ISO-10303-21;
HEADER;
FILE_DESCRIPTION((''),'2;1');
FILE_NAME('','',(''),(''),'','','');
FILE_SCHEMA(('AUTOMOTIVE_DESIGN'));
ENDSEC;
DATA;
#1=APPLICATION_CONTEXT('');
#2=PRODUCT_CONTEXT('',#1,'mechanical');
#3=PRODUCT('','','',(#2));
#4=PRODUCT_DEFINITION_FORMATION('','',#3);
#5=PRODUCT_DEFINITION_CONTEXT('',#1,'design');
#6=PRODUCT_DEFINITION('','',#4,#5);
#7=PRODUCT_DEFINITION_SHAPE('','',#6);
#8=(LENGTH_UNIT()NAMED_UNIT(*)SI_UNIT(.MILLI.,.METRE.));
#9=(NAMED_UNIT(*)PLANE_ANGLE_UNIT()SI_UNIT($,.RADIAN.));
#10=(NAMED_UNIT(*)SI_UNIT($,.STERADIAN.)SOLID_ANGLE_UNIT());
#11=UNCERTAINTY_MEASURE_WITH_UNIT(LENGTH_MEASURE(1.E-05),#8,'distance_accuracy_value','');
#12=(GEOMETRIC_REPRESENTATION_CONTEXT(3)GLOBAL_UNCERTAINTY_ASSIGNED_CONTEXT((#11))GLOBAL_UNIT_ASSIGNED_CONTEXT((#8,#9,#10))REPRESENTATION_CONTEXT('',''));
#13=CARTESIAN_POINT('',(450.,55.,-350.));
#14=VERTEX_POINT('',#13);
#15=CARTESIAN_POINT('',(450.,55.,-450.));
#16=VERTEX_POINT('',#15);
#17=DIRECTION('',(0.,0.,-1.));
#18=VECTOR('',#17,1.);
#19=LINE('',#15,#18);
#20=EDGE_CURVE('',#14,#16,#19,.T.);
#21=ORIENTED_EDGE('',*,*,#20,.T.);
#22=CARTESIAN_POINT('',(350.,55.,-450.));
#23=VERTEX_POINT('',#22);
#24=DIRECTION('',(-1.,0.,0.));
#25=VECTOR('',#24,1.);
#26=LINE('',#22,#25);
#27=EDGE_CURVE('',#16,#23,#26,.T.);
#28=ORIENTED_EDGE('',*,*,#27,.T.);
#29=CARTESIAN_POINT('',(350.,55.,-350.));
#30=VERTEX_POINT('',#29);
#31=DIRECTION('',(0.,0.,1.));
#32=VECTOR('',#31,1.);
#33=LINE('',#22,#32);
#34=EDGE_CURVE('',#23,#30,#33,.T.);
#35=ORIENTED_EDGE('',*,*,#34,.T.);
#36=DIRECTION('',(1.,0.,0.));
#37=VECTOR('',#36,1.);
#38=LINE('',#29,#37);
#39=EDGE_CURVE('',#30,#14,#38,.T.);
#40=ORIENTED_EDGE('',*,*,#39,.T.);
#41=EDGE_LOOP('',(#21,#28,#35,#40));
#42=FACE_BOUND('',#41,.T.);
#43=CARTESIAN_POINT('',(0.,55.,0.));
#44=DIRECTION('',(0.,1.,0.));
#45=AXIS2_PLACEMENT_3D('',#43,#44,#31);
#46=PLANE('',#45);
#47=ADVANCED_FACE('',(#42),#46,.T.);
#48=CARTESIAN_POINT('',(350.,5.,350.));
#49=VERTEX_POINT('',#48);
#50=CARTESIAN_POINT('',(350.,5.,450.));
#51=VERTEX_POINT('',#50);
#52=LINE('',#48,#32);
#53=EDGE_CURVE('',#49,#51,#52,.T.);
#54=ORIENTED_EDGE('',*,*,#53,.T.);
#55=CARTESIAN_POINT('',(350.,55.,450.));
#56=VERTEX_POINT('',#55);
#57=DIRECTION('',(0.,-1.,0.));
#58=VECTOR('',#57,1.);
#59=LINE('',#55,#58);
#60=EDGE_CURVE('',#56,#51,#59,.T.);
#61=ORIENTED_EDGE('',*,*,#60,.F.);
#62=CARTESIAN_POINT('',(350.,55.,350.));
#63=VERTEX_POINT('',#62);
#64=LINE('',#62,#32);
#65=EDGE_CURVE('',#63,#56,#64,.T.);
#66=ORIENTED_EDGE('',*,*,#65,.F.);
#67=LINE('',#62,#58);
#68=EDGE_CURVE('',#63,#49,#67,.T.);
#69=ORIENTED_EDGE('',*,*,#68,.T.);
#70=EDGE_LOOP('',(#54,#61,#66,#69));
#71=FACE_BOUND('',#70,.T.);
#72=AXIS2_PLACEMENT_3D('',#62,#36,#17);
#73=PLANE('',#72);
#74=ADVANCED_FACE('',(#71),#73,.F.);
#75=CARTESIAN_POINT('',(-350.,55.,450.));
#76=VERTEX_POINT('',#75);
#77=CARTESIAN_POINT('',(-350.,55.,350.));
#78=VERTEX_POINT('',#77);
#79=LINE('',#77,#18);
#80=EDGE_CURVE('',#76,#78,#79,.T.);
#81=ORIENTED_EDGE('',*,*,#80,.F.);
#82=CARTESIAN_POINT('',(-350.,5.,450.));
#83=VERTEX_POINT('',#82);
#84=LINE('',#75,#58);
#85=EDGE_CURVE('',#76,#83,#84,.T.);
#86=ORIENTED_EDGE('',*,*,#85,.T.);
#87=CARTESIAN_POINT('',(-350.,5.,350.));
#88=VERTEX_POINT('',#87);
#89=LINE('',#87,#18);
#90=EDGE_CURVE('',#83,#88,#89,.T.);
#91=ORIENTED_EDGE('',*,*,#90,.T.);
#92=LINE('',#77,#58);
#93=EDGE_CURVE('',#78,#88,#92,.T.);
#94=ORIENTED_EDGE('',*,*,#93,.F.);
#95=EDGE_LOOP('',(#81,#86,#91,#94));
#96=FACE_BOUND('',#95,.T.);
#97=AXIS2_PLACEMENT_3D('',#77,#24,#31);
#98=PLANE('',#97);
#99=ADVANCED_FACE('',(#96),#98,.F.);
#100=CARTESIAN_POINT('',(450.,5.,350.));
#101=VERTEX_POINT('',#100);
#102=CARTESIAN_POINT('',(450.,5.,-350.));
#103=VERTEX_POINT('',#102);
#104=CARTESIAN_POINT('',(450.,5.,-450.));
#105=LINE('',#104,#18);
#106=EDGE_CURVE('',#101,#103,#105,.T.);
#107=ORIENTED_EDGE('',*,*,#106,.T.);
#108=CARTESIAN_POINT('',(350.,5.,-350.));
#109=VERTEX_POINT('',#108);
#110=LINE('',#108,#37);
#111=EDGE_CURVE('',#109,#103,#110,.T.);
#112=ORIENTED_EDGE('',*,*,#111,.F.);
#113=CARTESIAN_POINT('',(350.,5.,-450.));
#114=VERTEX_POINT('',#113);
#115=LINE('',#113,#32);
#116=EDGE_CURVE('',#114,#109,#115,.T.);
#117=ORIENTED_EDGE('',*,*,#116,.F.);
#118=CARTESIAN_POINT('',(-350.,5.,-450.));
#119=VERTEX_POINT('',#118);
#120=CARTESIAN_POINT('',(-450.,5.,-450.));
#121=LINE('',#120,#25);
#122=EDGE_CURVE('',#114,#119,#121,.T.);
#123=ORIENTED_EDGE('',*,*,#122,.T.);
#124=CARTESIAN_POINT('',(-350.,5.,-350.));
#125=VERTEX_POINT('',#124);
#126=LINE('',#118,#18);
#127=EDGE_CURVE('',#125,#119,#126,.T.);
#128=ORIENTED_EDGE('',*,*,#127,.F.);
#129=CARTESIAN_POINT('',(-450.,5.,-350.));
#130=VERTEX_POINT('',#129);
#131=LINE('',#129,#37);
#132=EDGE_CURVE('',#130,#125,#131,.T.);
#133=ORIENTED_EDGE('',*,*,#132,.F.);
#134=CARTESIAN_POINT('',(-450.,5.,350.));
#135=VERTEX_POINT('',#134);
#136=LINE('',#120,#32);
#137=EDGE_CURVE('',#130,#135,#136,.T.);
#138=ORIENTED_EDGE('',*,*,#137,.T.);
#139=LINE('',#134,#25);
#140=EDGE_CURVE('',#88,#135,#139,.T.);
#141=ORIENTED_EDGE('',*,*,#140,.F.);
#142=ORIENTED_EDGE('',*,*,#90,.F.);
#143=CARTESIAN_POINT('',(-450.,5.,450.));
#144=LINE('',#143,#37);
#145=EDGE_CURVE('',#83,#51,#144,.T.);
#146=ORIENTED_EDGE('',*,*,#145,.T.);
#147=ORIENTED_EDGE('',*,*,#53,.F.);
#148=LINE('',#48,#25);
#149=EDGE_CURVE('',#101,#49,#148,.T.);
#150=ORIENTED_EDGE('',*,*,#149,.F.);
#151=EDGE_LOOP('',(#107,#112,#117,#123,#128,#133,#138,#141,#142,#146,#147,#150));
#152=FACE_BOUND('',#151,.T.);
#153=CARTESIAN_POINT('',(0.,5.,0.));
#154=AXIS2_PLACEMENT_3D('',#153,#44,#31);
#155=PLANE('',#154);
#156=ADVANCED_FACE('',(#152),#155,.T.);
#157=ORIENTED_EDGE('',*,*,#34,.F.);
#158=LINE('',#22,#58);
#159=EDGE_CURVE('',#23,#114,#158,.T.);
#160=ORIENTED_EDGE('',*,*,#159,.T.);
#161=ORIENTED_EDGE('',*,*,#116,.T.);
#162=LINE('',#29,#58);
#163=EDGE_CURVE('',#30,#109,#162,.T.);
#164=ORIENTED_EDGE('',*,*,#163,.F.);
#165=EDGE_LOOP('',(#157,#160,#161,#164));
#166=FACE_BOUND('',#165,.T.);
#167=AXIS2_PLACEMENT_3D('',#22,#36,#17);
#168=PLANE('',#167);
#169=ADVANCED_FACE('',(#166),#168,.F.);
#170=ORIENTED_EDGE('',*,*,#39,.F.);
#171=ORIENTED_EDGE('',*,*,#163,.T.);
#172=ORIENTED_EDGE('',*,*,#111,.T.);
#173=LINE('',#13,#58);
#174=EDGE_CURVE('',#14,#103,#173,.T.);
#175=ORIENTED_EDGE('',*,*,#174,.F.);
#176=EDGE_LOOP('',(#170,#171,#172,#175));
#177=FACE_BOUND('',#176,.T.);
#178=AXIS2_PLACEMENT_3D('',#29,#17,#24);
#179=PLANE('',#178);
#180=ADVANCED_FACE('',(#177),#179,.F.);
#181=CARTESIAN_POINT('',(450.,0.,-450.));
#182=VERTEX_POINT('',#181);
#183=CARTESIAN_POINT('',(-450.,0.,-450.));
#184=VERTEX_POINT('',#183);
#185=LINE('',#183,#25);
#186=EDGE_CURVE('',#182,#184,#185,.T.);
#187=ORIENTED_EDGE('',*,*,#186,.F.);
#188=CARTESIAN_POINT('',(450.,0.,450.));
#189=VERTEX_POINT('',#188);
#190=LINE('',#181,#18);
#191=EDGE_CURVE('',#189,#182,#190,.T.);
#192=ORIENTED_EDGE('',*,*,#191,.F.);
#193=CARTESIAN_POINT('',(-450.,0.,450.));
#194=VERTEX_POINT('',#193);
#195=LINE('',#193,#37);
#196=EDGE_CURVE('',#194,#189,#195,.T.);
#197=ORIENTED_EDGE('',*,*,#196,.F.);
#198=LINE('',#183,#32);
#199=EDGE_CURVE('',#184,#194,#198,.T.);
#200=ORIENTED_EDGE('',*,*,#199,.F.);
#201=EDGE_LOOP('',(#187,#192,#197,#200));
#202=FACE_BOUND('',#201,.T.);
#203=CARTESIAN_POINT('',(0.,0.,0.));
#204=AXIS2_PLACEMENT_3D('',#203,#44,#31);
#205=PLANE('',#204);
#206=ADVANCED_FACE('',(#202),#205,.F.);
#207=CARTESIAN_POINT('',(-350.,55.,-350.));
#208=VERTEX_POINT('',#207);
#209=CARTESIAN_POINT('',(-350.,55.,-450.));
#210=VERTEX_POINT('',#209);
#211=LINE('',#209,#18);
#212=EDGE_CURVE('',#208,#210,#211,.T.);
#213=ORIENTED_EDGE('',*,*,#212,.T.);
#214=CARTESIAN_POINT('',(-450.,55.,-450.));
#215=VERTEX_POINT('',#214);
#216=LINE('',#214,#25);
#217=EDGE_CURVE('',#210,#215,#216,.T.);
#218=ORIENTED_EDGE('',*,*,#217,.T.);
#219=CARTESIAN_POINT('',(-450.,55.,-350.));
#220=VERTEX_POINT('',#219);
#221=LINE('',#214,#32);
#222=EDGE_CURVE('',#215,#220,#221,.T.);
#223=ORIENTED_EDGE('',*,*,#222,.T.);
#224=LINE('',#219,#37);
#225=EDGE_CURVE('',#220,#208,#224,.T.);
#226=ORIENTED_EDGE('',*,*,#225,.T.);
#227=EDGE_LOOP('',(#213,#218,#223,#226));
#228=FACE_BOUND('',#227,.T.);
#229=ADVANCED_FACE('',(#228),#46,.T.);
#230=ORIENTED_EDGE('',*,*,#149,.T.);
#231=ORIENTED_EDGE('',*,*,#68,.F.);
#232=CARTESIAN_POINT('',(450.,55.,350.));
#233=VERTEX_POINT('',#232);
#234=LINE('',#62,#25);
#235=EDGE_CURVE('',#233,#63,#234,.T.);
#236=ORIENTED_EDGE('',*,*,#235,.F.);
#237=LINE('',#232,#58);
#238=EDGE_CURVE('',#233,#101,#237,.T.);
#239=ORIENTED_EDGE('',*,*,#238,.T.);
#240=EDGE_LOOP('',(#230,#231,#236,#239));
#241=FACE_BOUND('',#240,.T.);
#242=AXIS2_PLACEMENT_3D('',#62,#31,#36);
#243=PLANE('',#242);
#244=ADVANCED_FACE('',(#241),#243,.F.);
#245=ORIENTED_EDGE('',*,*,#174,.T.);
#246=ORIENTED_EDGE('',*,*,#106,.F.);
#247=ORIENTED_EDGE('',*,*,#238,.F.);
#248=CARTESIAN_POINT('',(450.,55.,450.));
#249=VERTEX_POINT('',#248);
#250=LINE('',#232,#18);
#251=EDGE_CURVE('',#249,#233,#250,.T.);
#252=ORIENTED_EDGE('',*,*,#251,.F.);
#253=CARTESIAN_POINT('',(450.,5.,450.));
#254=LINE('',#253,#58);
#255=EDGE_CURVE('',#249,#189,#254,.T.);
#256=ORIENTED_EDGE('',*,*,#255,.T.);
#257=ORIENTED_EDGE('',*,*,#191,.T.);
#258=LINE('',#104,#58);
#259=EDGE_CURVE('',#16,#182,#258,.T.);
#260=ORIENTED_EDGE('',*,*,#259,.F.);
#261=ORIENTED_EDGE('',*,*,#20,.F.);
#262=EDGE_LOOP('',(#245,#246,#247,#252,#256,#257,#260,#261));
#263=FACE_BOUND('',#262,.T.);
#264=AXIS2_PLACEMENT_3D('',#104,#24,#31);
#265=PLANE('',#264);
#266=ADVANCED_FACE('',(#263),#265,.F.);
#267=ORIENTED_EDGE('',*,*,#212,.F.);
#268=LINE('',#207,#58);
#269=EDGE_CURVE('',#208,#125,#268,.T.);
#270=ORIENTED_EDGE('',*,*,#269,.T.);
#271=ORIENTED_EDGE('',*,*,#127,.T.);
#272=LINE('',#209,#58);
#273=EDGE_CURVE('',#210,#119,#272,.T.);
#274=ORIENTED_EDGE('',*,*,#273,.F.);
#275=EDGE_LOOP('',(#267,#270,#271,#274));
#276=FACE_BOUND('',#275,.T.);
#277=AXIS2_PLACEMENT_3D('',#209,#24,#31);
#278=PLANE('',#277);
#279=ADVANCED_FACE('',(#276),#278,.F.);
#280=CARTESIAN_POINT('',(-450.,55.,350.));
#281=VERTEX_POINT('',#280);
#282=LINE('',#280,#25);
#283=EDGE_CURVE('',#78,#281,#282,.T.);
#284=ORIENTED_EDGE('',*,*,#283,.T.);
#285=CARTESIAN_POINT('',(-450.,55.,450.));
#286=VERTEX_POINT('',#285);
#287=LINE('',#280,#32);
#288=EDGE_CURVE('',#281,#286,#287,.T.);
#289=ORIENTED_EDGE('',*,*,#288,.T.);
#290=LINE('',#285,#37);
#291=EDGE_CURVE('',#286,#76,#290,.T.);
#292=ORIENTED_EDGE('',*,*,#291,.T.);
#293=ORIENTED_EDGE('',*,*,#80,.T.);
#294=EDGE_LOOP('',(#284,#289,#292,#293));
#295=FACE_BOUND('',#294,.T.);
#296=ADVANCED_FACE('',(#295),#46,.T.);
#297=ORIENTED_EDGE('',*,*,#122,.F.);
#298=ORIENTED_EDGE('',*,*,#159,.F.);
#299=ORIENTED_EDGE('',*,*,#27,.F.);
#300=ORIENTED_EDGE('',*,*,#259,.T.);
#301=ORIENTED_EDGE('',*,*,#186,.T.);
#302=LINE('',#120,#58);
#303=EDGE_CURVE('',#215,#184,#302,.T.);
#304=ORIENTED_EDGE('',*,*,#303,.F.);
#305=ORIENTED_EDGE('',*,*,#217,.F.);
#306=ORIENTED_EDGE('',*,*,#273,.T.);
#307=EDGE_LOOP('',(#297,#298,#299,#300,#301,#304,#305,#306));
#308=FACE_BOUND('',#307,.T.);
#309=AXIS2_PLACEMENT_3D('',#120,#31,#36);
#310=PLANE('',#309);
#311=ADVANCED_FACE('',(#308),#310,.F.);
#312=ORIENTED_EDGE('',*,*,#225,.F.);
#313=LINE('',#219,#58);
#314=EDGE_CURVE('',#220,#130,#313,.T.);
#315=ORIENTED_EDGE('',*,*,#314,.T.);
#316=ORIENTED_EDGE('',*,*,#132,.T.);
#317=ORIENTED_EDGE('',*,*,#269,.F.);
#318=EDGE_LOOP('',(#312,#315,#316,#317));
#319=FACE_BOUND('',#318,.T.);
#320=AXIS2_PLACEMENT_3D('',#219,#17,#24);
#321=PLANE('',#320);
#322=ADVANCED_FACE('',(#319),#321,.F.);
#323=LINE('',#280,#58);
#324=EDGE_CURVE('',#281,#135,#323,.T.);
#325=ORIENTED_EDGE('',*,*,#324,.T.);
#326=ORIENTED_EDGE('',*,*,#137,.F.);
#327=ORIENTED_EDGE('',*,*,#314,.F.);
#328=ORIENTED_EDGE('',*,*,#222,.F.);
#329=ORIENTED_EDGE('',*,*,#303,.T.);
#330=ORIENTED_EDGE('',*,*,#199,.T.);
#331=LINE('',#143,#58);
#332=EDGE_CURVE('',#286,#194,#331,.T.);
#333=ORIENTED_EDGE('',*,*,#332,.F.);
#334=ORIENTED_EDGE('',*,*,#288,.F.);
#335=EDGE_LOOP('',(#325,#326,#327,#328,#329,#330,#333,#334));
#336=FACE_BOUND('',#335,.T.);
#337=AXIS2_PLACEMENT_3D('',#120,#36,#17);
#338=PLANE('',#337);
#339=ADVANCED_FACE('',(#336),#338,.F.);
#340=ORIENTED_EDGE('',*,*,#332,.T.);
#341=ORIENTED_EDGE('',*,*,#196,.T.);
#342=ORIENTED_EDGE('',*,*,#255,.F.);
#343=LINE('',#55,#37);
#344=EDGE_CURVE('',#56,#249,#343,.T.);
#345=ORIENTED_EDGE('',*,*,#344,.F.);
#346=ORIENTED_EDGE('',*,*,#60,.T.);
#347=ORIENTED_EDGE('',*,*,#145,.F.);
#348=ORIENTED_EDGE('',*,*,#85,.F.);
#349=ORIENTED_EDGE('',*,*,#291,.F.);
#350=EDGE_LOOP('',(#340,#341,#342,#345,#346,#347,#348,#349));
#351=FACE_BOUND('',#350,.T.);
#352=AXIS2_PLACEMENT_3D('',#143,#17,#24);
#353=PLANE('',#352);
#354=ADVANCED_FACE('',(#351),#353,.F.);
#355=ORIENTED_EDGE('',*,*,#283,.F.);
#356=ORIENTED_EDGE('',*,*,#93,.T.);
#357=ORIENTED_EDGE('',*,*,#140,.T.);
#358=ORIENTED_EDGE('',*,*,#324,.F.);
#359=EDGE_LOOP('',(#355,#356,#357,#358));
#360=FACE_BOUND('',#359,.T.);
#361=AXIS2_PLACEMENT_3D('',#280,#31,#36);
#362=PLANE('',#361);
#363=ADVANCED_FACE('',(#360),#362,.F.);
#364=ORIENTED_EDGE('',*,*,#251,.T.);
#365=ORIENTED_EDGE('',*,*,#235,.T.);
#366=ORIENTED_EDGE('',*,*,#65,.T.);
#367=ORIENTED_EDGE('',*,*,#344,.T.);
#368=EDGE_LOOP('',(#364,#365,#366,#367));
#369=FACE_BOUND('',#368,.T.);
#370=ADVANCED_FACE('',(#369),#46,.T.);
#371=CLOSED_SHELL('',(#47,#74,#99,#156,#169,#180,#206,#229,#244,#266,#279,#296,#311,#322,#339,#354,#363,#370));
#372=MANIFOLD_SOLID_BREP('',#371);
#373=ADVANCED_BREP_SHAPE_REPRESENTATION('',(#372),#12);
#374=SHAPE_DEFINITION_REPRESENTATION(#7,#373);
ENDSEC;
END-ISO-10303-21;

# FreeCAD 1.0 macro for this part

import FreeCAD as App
import Part
import Sketcher

V = App.Vector

doc = App.newDocument("Part")
body = doc.addObject("PartDesign::Body", "Body")

# Sketch on XZ plane
sketch1 = body.newObject("Sketcher::SketchObject", "Sketch")
sketch1.AttachmentSupport = (doc.getObject("XZ_Plane"), [""])
sketch1.MapMode = "FlatFace"
sketch1.addGeometry([
    Part.LineSegment(V(-450, -450, 0), V(-450, 450, 0)),
    Part.LineSegment(V(-450, 450, 0), V(450, 450, 0)),
    Part.LineSegment(V(450, 450, 0), V(450, -450, 0)),
    Part.LineSegment(V(450, -450, 0), V(-450, -450, 0)),
], False)
sketch1.addConstraint([
    Sketcher.Constraint("Coincident", 0, 2, 1, 1),
    Sketcher.Constraint("Coincident", 1, 2, 2, 1),
    Sketcher.Constraint("Coincident", 2, 2, 3, 1),
    Sketcher.Constraint("Coincident", 3, 2, 0, 1),
    Sketcher.Constraint("Vertical", 0),
    Sketcher.Constraint("Horizontal", 1),
    Sketcher.Constraint("Vertical", 2),
    Sketcher.Constraint("Horizontal", 3),
    Sketcher.Constraint("Symmetric", 0, 2, 2, 2, -1, 1),
    Sketcher.Constraint("Equal", 3, 0),
    Sketcher.Constraint("DistanceX", 1, 1, 1, 2, 900.0),
])
pad1 = body.newObject("PartDesign::Pad", "Pad")
pad1.Profile = sketch1
pad1.Length = 5
pad1.Reversed = True

# Sketch on XZ plane
sketch2 = body.newObject("Sketcher::SketchObject", "Sketch001")
sketch2.AttachmentSupport = (doc.getObject("XZ_Plane"), [""])
sketch2.MapMode = "FlatFace"
sketch2.AttachmentOffset = App.Placement(V(0, 0, -5), App.Rotation())
sketch2.addGeometry([
    Part.LineSegment(V(-450, -450, 0), V(-450, -350, 0)),  # 0
    Part.LineSegment(V(-450, -350, 0), V(-350, -350, 0)),  # 1
    Part.LineSegment(V(-350, -350, 0), V(-350, -450, 0)),  # 2
    Part.LineSegment(V(-350, -450, 0), V(-450, -450, 0)),  # 3
    Part.LineSegment(V(350, -450, 0), V(350, -350, 0)),  # 4
    Part.LineSegment(V(350, -350, 0), V(450, -350, 0)),  # 5
    Part.LineSegment(V(450, -350, 0), V(450, -450, 0)),  # 6
    Part.LineSegment(V(450, -450, 0), V(350, -450, 0)),  # 7
    Part.LineSegment(V(350, 350, 0), V(350, 450, 0)),  # 8
    Part.LineSegment(V(350, 450, 0), V(450, 450, 0)),  # 9
    Part.LineSegment(V(450, 450, 0), V(450, 350, 0)),  # 10
    Part.LineSegment(V(450, 350, 0), V(350, 350, 0)),  # 11
    Part.LineSegment(V(-450, 350, 0), V(-450, 450, 0)),  # 12
    Part.LineSegment(V(-450, 450, 0), V(-350, 450, 0)),  # 13
    Part.LineSegment(V(-350, 450, 0), V(-350, 350, 0)),  # 14
    Part.LineSegment(V(-350, 350, 0), V(-450, 350, 0)),  # 15
], False)
sketch2.addConstraint([
    Sketcher.Constraint("Coincident", 0, 2, 1, 1),
    Sketcher.Constraint("Coincident", 1, 2, 2, 1),
    Sketcher.Constraint("Coincident", 2, 2, 3, 1),
    Sketcher.Constraint("Coincident", 3, 2, 0, 1),
    Sketcher.Constraint("Coincident", 4, 2, 5, 1),
    Sketcher.Constraint("Coincident", 5, 2, 6, 1),
    Sketcher.Constraint("Coincident", 6, 2, 7, 1),
    Sketcher.Constraint("Coincident", 7, 2, 4, 1),
    Sketcher.Constraint("Coincident", 8, 2, 9, 1),
    Sketcher.Constraint("Coincident", 9, 2, 10, 1),
    Sketcher.Constraint("Coincident", 10, 2, 11, 1),
    Sketcher.Constraint("Coincident", 11, 2, 8, 1),
    Sketcher.Constraint("Coincident", 12, 2, 13, 1),
    Sketcher.Constraint("Coincident", 13, 2, 14, 1),
    Sketcher.Constraint("Coincident", 14, 2, 15, 1),
    Sketcher.Constraint("Coincident", 15, 2, 12, 1),
    Sketcher.Constraint("Vertical", 0),
    Sketcher.Constraint("Horizontal", 1),
    Sketcher.Constraint("Vertical", 2),
    Sketcher.Constraint("Horizontal", 3),
    Sketcher.Constraint("Vertical", 4),
    Sketcher.Constraint("Horizontal", 5),
    Sketcher.Constraint("Vertical", 6),
    Sketcher.Constraint("Horizontal", 7),
    Sketcher.Constraint("Vertical", 8),
    Sketcher.Constraint("Horizontal", 9),
    Sketcher.Constraint("Vertical", 10),
    Sketcher.Constraint("Horizontal", 11),
    Sketcher.Constraint("Vertical", 12),
    Sketcher.Constraint("Horizontal", 13),
    Sketcher.Constraint("Vertical", 14),
    Sketcher.Constraint("Horizontal", 15),
    Sketcher.Constraint("Symmetric", 2, 2, 8, 2, -1, 1),
    Sketcher.Constraint("Symmetric", 0, 2, 10, 2, -1, 1),
    Sketcher.Constraint("Symmetric", 6, 2, 12, 2, -1, 1),
    Sketcher.Constraint("Symmetric", 4, 2, 14, 2, -1, 1),
    Sketcher.Constraint("Symmetric", 1, 2, 4, 2, -2),
    Sketcher.Constraint("Symmetric", 3, 2, 6, 2, -2),
    Sketcher.Constraint("Equal", 15, 0),
    Sketcher.Constraint("DistanceX", 1, 1, 1, 2, 100.0),
    Sketcher.Constraint("DistanceX", 0, 2, -1, 1, 450.0),
    Sketcher.Constraint("DistanceY", 0, 2, -1, 1, 350.0),
])
pad2 = body.newObject("PartDesign::Pad", "Pad001")
pad2.Profile = sketch2
pad2.Length = 50
pad2.Reversed = True

doc.recompute()
